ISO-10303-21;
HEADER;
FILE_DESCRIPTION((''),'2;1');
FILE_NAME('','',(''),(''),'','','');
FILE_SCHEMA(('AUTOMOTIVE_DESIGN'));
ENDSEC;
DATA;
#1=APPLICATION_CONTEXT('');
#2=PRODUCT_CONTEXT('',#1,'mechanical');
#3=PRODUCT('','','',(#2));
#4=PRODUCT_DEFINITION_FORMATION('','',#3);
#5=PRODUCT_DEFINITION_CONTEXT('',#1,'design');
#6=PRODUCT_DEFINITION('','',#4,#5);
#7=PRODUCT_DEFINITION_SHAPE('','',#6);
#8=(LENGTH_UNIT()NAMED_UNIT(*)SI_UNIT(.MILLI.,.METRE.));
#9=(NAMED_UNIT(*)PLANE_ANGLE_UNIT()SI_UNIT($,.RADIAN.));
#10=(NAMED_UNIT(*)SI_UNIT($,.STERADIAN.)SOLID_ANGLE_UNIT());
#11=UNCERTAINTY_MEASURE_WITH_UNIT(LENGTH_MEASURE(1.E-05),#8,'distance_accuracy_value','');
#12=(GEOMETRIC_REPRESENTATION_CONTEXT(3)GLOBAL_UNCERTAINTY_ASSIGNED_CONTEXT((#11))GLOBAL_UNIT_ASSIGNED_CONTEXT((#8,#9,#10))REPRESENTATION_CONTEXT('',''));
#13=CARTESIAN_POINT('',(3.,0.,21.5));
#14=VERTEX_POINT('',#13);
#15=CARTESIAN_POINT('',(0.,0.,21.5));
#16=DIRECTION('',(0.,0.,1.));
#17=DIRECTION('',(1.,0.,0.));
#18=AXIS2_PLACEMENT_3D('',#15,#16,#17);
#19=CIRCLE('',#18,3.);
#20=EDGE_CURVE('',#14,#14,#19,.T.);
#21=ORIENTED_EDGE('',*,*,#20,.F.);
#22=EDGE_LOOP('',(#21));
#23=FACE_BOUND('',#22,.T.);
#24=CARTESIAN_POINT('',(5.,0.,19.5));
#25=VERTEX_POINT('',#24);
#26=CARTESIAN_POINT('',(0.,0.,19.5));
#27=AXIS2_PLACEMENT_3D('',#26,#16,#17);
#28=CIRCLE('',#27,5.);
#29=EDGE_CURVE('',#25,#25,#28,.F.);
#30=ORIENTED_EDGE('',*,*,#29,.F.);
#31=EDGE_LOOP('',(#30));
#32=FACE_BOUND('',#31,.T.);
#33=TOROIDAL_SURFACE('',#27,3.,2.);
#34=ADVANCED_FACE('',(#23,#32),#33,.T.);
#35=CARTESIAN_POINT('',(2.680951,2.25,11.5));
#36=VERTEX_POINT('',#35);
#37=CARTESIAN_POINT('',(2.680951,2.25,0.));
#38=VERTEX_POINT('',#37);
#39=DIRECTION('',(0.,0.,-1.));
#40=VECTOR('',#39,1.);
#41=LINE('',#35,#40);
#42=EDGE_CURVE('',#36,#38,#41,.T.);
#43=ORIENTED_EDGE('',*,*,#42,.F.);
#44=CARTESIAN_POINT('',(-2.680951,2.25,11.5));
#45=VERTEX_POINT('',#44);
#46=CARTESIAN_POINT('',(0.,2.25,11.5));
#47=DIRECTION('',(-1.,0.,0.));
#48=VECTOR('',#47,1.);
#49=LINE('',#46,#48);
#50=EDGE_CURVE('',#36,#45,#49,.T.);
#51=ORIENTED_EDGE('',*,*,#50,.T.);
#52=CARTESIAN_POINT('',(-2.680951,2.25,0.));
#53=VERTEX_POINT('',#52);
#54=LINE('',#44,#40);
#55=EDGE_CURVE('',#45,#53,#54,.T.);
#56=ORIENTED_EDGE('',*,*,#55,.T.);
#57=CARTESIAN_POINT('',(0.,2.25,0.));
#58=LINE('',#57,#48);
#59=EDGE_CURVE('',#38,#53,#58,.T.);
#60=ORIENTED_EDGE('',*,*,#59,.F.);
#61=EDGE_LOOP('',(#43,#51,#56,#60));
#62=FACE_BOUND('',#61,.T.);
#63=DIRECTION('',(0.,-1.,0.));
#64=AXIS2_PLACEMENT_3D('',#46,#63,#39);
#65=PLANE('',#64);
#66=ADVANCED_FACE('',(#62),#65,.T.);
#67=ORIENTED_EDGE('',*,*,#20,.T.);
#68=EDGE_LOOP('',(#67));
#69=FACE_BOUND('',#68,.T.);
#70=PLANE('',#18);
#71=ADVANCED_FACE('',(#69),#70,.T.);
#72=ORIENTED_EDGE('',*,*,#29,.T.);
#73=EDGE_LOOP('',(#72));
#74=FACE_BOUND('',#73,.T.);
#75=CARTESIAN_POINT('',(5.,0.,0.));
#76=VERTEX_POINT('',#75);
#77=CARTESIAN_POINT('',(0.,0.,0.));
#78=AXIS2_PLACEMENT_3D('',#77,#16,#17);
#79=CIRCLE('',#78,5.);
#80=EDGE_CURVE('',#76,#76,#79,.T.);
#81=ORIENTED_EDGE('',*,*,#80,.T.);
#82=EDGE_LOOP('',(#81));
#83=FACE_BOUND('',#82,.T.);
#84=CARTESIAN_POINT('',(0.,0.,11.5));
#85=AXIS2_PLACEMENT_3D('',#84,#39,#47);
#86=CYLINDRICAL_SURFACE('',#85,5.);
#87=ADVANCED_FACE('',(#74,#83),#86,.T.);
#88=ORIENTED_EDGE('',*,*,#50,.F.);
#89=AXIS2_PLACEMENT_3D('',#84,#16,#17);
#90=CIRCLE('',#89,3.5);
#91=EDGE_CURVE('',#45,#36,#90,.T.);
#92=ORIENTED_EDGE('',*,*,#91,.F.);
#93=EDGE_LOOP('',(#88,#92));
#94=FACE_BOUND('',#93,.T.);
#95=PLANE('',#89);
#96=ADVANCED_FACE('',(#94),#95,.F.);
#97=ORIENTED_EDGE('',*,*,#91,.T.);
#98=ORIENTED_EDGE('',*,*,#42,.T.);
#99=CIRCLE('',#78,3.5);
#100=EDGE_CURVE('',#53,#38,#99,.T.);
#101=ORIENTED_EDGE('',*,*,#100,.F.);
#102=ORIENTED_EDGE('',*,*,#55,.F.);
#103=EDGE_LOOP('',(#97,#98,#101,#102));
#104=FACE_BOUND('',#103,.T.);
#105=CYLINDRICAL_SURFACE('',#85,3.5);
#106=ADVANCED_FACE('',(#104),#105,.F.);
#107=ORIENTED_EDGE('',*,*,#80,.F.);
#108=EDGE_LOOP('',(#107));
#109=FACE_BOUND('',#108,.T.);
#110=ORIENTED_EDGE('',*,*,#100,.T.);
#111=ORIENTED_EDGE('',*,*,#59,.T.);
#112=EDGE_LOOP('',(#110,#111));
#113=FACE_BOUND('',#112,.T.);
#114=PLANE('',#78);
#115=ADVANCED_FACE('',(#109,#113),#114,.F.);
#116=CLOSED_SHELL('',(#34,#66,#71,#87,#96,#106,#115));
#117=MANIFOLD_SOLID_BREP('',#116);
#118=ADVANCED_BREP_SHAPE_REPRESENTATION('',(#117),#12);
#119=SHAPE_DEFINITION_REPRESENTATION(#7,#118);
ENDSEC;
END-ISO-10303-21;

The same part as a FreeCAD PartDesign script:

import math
import FreeCAD as App
import Part
import Sketcher
Q = App.Units.Quantity


def edges_at(feature, points):
    """Names of the edges that pass closest to the given points."""
    edges = feature.Shape.Edges
    near = lambda p: min(range(len(edges)), key=lambda i: edges[i].distToShape(Part.Vertex(*p))[0])
    return sorted({f"Edge{near(p) + 1}" for p in points})

doc = App.newDocument("Part")
body = doc.addObject("PartDesign::Body", "Body")

# Sketch on XY plane
sketch1 = body.newObject("Sketcher::SketchObject", "Sketch")
sketch1.AttachmentSupport = (doc.getObject("XY_Plane"), [""])
sketch1.MapMode = "FlatFace"
sketch1.addGeometry(Part.Circle(App.Vector(0, 0, 0), App.Vector(0, 0, 1), 5), False)
sketch1.addGeometry(Part.ArcOfCircle(Part.Circle(App.Vector(0, 0, 0), App.Vector(0, 0, 1), 3.5), math.radians(140), math.radians(400)), False)
sketch1.addGeometry(Part.LineSegment(App.Vector(-2.7, 2.2, 0), App.Vector(2.7, 2.2, 0)), False)
sketch1.addConstraint(Sketcher.Constraint("Coincident", 1, 1, 2, 1))
sketch1.addConstraint(Sketcher.Constraint("Coincident", 2, 2, 1, 2))
sketch1.addConstraint(Sketcher.Constraint("Horizontal", 2))
sketch1.addConstraint(Sketcher.Constraint("Coincident", 0, 3, -1, 1))
sketch1.addConstraint(Sketcher.Constraint("Coincident", 1, 3, -1, 1))
sketch1.addConstraint(Sketcher.Constraint("Diameter", 0, Q("10 mm")))
sketch1.addConstraint(Sketcher.Constraint("Radius", 1, Q("3.5 mm")))
sketch1.addConstraint(Sketcher.Constraint("DistanceY", -1, 1, 1, 1, Q("2.25 mm")))
pad1 = body.newObject("PartDesign::Pad", "Pad")
pad1.Profile = sketch1
pad1.Length = 11.5

# Sketch on XY plane
sketch2 = body.newObject("Sketcher::SketchObject", "Sketch001")
sketch2.AttachmentSupport = (doc.getObject("XY_Plane"), [""])
sketch2.MapMode = "FlatFace"
sketch2.AttachmentOffset = App.Placement(App.Vector(0, 0, 11.5), App.Rotation())
sketch2.addGeometry(Part.Circle(App.Vector(0, 0, 0), App.Vector(0, 0, 1), 5), False)
sketch2.addConstraint(Sketcher.Constraint("Coincident", 0, 3, -1, 1))
sketch2.addConstraint(Sketcher.Constraint("Diameter", 0, Q("10 mm")))
pad2 = body.newObject("PartDesign::Pad", "Pad001")
pad2.Profile = sketch2
pad2.Length = 10
doc.recompute()

fillet = body.newObject("PartDesign::Fillet", "Fillet")
fillet.Base = (pad2, edges_at(pad2, [(-5, 0, 21.5)]))
fillet.Radius = 2

doc.recompute()
